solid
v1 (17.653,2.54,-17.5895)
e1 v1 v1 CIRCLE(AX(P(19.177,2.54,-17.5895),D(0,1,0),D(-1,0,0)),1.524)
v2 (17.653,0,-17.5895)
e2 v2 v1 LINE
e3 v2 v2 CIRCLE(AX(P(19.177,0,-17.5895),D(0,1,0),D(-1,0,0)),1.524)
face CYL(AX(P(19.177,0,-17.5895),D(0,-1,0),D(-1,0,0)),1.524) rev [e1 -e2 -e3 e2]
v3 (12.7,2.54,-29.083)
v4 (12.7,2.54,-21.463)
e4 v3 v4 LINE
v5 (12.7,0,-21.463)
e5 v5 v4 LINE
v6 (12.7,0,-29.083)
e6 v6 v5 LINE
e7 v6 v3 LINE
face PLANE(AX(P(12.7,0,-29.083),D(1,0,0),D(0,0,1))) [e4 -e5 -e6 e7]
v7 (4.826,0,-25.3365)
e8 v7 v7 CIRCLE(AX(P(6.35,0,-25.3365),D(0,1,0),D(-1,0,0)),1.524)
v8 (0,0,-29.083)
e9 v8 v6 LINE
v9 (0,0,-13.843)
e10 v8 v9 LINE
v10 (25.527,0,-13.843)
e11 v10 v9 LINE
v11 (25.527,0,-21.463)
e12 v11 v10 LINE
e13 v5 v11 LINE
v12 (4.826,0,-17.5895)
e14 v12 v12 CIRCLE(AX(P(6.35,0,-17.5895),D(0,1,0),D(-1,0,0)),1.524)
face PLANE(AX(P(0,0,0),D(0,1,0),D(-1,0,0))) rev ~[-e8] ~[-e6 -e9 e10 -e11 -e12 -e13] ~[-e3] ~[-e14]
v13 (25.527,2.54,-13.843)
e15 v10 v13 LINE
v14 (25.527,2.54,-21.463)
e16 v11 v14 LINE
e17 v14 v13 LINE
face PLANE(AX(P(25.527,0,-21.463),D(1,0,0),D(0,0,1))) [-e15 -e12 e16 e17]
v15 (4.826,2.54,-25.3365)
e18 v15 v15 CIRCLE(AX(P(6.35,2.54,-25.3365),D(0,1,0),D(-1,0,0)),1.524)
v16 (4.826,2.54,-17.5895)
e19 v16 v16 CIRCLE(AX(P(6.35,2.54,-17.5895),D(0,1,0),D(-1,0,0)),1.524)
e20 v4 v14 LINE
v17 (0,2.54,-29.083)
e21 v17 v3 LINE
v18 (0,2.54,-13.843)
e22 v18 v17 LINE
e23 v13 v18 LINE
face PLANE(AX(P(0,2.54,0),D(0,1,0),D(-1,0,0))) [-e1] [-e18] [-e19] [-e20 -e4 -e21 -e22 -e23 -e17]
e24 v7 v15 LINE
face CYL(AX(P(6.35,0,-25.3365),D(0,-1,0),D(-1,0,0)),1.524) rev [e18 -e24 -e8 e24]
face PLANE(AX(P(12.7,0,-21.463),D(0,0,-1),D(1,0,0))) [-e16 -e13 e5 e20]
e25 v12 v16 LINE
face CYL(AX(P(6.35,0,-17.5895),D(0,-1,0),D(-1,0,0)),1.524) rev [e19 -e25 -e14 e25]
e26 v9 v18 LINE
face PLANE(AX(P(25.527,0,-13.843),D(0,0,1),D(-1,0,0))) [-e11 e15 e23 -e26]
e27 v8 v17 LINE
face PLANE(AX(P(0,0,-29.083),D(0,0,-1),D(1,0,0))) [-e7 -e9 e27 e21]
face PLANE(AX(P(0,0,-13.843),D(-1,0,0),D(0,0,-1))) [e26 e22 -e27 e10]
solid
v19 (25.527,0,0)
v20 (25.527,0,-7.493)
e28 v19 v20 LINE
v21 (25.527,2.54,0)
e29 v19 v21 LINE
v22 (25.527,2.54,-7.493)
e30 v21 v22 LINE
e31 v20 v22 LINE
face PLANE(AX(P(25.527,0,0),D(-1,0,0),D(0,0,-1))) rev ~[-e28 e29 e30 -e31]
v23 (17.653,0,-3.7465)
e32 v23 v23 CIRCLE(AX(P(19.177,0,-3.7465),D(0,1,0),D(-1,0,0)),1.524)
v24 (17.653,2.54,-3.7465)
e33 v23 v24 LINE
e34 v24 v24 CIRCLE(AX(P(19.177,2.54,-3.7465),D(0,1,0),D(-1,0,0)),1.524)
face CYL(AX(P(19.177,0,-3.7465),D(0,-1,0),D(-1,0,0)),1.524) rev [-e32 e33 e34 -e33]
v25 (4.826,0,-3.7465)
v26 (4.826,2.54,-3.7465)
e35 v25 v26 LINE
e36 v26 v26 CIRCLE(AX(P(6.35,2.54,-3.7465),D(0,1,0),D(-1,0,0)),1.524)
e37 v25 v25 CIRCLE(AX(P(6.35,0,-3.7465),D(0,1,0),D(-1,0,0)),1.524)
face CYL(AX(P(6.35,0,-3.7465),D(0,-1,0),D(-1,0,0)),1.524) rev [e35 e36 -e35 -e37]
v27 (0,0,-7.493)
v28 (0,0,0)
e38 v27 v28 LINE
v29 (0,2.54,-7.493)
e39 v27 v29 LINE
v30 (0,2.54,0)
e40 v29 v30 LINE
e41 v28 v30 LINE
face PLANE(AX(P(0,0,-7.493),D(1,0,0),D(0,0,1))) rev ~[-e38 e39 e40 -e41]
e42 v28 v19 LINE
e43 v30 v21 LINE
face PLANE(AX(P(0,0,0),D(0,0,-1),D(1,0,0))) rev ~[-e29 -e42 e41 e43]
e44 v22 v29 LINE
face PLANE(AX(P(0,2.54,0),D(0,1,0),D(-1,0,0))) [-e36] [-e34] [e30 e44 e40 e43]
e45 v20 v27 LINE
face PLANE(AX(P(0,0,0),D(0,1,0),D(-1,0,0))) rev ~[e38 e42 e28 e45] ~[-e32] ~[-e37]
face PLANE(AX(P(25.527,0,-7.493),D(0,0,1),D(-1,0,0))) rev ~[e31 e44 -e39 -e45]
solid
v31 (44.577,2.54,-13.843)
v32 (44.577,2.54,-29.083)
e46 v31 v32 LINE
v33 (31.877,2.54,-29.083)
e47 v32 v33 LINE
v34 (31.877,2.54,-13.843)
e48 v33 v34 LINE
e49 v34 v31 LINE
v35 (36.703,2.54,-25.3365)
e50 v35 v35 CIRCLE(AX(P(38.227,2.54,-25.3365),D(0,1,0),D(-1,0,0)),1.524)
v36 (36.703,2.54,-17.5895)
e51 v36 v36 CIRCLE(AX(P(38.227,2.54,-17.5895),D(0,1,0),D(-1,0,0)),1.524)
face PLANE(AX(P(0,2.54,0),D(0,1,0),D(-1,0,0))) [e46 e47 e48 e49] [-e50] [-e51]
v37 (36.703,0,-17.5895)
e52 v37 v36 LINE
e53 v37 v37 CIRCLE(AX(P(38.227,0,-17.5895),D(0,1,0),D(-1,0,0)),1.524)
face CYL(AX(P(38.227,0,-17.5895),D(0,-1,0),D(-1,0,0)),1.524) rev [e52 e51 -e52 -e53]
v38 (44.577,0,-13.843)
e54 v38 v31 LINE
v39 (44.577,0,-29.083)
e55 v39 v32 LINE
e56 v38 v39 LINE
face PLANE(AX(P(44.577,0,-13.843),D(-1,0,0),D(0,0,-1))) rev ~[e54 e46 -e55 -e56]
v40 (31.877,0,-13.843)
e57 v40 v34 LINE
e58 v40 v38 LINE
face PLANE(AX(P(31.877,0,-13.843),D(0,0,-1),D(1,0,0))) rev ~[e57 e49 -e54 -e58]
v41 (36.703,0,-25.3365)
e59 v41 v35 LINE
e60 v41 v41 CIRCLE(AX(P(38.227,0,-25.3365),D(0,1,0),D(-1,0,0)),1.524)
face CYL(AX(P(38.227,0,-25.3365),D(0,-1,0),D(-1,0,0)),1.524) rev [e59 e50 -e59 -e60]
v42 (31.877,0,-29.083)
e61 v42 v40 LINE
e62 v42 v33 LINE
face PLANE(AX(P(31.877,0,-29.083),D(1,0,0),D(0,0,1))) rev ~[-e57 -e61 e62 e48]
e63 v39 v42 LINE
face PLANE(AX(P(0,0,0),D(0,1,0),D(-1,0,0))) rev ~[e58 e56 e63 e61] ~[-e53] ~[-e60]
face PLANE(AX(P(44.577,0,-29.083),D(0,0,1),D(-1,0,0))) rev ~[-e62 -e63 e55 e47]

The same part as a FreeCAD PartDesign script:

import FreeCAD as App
import Part
import Sketcher
Q = App.Units.Quantity


def add_polygon(sketch, points):
    """Adds a closed chain of lines whose ends are joined by coincident constraints."""
    first, n = sketch.GeometryCount, len(points)
    for a, b in zip(points, points[1:] + points[:1]):
        sketch.addGeometry(Part.LineSegment(App.Vector(*a, 0), App.Vector(*b, 0)), False)
    for i in range(n):
        sketch.addConstraint(Sketcher.Constraint("Coincident", first + i, 2, first + (i + 1) % n, 1))

doc = App.newDocument("Part")
body = doc.addObject("PartDesign::Body", "Body")
body.AllowCompound = True

# Sketch on XZ plane
sketch1 = doc.addObject("Sketcher::SketchObject", "Sketch")
body.addObject(sketch1)
sketch1.AttachmentSupport = (doc.XZ_Plane, [""])
sketch1.MapMode = "FlatFace"
add_polygon(sketch1, [(0, -7.493), (0, 0), (25.527, 0), (25.527, -7.493)])  # lines 0-3
sketch1.addGeometry(Part.Circle(App.Vector(19.177, -3.7465, 0), App.Vector(0, 0, 1), 1.524), False)  # 4
sketch1.addGeometry(Part.Circle(App.Vector(6.35, -3.7465, 0), App.Vector(0, 0, 1), 1.524), False)  # 5
add_polygon(sketch1, [(25.527, -21.463), (12.7, -21.463), (12.7, -29.083), (0, -29.083), (0, -13.843), (25.527, -13.843)])  # lines 6-11
sketch1.addGeometry(Part.Circle(App.Vector(6.35, -25.3365, 0), App.Vector(0, 0, 1), 1.524), False)  # 12
sketch1.addGeometry(Part.Circle(App.Vector(19.177, -17.5895, 0), App.Vector(0, 0, 1), 1.524), False)  # 13
sketch1.addGeometry(Part.Circle(App.Vector(6.35, -17.5895, 0), App.Vector(0, 0, 1), 1.524), False)  # 14
add_polygon(sketch1, [(31.877, -29.083), (31.877, -13.843), (44.577, -13.843), (44.577, -29.083)])  # lines 15-18
sketch1.addGeometry(Part.Circle(App.Vector(38.227, -25.3365, 0), App.Vector(0, 0, 1), 1.524), False)  # 19
sketch1.addGeometry(Part.Circle(App.Vector(38.227, -17.5895, 0), App.Vector(0, 0, 1), 1.524), False)  # 20
sketch1.addConstraint([
    Sketcher.Constraint("Vertical", 0),
    Sketcher.Constraint("Horizontal", 1),
    Sketcher.Constraint("Vertical", 2),
    Sketcher.Constraint("Horizontal", 3),
    Sketcher.Constraint("Horizontal", 6),
    Sketcher.Constraint("Vertical", 7),
    Sketcher.Constraint("Horizontal", 8),
    Sketcher.Constraint("Vertical", 9),
    Sketcher.Constraint("Horizontal", 10),
    Sketcher.Constraint("Vertical", 11),
    Sketcher.Constraint("Vertical", 15),
    Sketcher.Constraint("Horizontal", 16),
    Sketcher.Constraint("Vertical", 17),
    Sketcher.Constraint("Horizontal", 18),
    Sketcher.Constraint("Coincident", 0, 2, -1, 1),
    Sketcher.Constraint("Equal", 4, 5),
    Sketcher.Constraint("Equal", 5, 12),
    Sketcher.Constraint("Equal", 12, 13),
    Sketcher.Constraint("Equal", 13, 14),
    Sketcher.Constraint("Equal", 14, 19),
    Sketcher.Constraint("Equal", 19, 20),
    Sketcher.Constraint("PointOnObject", 8, 2, -2),
    Sketcher.Constraint("Horizontal", 4, 3, 5, 3),
    Sketcher.Constraint("Horizontal", 13, 3, 14, 3),
    Sketcher.Constraint("Horizontal", 12, 3, 19, 3),
    Sketcher.Constraint("Horizontal", 14, 3, 20, 3),
    Sketcher.Constraint("Horizontal", 10, 2, 15, 2),
    Sketcher.Constraint("Horizontal", 8, 2, 17, 2),
    Sketcher.Constraint("Vertical", 5, 3, 12, 3),
    Sketcher.Constraint("Vertical", 4, 3, 13, 3),
    Sketcher.Constraint("Vertical", 12, 3, 14, 3),
    Sketcher.Constraint("Vertical", 19, 3, 20, 3),
    Sketcher.Constraint("Vertical", 2, 2, 10, 2),
    Sketcher.Constraint("Equal", 8, 16),
    Sketcher.Constraint("Equal", 7, 11),
    Sketcher.Constraint("Diameter", 4, Q("0.12 in")),
    Sketcher.Constraint("DistanceX", 8, 2, 8, 1, Q("0.5 in")),
    Sketcher.Constraint("DistanceY", 7, 2, 7, 1, Q("0.3 in")),
    Sketcher.Constraint("DistanceX", 1, 2, 20, 3, Q("0.5 in")),
    Sketcher.Constraint("DistanceX", 1, 1, 1, 2, Q("1.005 in")),
    Sketcher.Constraint("DistanceY", 0, 1, 0, 2, Q("0.295 in")),
    Sketcher.Constraint("DistanceX", -1, 1, 5, 3, Q("0.25 in")),
    Sketcher.Constraint("DistanceX", 4, 3, 1, 2, Q("0.25 in")),
    Sketcher.Constraint("DistanceY", 9, 2, 3, 2, Q("0.25 in")),
    Sketcher.Constraint("DistanceX", 10, 2, 15, 2, Q("0.25 in")),
    Sketcher.Constraint("DistanceY", 4, 3, -1, 1, Q("0.1475 in")),
    Sketcher.Constraint("DistanceY", 7, 2, 12, 3, Q("0.1475 in")),
    Sketcher.Constraint("DistanceY", 14, 3, 9, 2, Q("0.1475 in")),
])
pad1 = doc.addObject("PartDesign::Pad", "Pad")
body.addObject(pad1)
pad1.Profile = sketch1
pad1.Length = Q("0.1 in")
pad1.Reversed = True

doc.recompute()
